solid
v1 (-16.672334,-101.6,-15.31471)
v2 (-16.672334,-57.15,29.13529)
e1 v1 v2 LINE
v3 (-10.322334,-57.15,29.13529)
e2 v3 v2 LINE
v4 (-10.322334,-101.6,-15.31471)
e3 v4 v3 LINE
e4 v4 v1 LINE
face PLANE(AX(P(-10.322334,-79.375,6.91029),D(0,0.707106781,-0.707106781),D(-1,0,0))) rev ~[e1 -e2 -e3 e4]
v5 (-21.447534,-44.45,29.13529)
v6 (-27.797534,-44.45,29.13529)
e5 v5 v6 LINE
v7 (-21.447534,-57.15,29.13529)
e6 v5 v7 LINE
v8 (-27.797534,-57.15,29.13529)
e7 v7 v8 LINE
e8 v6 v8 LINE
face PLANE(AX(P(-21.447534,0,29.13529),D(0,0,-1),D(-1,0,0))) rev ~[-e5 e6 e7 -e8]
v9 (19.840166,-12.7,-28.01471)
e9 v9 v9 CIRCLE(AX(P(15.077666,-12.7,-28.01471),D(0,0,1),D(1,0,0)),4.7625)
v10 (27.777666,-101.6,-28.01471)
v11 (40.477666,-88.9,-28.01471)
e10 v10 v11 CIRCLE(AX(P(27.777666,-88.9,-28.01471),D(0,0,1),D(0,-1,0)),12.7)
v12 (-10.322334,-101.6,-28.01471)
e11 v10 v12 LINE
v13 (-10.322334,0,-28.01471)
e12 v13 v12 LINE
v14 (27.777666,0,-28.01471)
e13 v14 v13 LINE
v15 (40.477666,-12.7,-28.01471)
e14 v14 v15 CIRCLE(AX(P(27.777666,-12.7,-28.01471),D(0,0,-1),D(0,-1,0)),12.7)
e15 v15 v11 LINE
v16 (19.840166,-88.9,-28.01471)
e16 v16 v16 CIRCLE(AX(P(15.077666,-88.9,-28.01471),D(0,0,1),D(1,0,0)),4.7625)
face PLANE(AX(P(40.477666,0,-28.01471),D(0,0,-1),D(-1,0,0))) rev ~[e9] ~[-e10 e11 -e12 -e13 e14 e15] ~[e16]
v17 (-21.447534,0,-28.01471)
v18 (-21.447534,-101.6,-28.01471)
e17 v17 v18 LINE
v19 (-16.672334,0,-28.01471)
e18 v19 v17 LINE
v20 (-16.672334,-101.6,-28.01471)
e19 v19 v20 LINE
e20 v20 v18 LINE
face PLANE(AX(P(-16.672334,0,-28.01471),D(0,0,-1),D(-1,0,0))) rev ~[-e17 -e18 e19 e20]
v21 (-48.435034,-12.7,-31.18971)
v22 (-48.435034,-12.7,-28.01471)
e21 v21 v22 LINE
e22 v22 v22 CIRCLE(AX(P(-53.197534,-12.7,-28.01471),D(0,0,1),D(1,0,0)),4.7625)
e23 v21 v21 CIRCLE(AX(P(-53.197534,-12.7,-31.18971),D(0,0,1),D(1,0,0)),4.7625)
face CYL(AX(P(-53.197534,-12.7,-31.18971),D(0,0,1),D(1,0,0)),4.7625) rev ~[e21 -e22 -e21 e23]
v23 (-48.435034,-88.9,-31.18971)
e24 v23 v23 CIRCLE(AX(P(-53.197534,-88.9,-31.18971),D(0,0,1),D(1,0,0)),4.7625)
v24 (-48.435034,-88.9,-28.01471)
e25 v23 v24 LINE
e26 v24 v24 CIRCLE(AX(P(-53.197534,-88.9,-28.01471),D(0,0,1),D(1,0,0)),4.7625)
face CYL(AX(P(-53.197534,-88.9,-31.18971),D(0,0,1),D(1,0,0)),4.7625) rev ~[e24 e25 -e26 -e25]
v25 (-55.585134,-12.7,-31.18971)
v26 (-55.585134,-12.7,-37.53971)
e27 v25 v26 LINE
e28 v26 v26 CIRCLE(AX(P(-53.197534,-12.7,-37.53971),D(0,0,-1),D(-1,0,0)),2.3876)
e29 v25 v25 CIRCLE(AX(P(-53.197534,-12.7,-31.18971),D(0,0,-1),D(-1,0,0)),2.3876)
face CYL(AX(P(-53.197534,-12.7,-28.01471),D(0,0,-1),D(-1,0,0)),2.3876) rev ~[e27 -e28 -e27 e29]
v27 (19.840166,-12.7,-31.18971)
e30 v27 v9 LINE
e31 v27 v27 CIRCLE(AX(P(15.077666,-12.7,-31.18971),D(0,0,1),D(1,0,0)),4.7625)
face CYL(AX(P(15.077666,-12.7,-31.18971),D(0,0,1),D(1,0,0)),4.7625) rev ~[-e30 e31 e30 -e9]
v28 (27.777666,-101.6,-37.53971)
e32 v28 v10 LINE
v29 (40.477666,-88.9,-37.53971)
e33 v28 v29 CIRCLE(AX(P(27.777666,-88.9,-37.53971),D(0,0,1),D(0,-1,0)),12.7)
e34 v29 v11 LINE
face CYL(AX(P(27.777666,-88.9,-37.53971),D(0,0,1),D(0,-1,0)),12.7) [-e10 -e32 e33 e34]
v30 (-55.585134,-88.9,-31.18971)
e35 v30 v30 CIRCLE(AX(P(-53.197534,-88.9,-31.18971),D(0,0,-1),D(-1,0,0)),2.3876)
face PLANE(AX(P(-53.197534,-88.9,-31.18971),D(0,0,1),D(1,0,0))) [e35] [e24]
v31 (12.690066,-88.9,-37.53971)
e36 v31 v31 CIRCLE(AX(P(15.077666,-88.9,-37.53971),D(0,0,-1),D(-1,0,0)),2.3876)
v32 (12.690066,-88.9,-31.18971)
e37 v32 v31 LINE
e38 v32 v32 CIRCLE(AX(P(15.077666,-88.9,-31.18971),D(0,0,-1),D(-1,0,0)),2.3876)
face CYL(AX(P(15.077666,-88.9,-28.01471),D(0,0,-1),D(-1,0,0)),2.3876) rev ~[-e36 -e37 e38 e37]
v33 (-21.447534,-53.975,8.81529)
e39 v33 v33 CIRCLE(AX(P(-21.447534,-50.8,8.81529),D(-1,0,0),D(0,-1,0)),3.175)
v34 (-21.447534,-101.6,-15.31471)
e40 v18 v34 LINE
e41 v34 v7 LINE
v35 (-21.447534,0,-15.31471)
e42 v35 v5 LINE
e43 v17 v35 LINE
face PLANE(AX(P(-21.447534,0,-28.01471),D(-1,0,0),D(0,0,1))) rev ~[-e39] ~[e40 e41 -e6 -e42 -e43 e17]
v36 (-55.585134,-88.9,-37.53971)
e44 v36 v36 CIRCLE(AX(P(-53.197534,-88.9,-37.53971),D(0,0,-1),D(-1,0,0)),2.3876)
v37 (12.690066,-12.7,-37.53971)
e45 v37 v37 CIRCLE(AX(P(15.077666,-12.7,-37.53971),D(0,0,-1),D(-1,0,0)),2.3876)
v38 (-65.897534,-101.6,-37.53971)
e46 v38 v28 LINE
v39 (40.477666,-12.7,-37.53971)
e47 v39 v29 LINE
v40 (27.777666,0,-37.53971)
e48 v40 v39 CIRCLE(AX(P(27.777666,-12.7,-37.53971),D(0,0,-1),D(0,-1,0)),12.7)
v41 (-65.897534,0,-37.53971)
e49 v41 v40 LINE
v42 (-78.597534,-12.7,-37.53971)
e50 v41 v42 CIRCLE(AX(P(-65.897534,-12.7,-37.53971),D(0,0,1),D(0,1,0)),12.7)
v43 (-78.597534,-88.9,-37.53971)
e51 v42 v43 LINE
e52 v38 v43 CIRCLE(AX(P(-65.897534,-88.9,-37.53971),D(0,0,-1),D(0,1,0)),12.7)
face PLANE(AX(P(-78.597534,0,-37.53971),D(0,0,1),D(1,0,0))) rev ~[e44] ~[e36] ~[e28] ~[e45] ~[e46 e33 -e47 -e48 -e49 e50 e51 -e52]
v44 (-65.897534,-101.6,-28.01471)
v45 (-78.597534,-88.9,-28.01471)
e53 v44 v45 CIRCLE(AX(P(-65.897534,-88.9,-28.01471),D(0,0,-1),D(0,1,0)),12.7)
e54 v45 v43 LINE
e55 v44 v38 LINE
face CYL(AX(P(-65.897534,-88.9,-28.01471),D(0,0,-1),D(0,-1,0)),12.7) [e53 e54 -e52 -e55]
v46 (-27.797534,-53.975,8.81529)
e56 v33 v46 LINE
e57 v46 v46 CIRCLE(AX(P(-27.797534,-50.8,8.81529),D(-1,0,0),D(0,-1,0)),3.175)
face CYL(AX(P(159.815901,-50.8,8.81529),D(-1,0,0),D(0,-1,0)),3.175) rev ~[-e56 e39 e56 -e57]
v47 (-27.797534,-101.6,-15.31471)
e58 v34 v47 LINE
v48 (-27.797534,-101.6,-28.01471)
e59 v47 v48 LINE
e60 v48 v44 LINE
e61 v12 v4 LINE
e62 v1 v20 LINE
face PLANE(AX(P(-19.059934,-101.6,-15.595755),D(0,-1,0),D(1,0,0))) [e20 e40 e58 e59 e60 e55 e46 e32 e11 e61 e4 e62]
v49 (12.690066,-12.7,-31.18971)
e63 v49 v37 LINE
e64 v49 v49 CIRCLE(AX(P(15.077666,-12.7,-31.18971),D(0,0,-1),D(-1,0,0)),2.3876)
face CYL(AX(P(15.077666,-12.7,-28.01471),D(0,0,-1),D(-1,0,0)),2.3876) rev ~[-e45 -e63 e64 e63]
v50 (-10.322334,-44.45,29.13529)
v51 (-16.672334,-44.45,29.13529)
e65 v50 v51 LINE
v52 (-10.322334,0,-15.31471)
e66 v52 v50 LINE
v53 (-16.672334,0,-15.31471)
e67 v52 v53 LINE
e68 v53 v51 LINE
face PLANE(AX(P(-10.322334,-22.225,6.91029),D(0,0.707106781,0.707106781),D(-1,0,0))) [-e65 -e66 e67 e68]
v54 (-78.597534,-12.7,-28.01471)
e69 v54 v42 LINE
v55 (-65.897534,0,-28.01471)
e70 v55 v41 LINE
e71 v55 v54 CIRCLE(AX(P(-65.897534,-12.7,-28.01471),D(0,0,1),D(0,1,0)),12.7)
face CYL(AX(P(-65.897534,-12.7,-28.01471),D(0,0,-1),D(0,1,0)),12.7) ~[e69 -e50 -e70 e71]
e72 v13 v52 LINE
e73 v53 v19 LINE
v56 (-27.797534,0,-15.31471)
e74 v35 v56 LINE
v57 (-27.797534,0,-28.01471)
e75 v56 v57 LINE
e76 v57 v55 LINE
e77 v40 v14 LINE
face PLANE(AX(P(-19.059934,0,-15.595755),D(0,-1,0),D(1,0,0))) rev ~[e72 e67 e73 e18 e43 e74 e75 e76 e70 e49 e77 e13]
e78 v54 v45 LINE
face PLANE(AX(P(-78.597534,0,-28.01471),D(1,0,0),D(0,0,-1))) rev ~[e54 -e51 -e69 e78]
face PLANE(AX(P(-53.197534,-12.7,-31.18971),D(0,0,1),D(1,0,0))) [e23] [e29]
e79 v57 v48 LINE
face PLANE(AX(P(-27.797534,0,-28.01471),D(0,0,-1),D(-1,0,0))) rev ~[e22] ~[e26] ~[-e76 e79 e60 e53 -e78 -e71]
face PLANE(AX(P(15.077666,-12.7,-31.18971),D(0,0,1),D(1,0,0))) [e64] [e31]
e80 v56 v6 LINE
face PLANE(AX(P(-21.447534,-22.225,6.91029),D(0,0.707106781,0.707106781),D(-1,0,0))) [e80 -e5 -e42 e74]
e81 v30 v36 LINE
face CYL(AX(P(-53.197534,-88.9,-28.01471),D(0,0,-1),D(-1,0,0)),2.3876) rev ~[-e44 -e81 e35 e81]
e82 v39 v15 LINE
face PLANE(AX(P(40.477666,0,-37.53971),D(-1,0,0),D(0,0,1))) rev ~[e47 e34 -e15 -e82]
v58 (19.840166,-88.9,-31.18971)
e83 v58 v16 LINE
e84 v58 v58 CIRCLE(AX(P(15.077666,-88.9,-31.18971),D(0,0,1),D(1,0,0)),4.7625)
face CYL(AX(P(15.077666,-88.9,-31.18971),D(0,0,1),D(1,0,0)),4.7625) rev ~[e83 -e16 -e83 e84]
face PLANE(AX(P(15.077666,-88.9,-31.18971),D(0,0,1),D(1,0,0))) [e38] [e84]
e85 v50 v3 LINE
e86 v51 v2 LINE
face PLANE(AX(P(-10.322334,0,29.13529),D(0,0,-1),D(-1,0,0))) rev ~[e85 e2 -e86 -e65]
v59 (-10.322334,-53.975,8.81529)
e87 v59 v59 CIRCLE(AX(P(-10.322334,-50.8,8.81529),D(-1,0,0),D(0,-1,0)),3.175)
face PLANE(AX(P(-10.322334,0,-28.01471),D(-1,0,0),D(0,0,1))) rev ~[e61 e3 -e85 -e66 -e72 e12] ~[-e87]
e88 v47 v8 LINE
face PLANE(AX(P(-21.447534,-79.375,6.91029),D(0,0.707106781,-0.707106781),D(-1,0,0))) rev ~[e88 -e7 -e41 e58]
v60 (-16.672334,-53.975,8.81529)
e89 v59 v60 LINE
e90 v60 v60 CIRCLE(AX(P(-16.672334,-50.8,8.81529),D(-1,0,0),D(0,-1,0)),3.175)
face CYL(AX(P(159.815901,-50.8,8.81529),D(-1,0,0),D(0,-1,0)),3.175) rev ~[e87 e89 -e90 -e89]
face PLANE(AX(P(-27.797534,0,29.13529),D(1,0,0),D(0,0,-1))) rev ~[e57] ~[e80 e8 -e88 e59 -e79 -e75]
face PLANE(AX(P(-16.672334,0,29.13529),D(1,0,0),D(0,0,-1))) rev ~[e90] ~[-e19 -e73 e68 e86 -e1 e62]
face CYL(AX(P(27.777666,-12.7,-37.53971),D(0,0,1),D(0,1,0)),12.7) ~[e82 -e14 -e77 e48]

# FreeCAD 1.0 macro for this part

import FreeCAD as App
import Part
import Sketcher
Q = App.Units.Quantity


def edges_at(feature, points):
    """Names of the edges that pass closest to the given points."""
    edges = feature.Shape.Edges
    near = lambda p: min(range(len(edges)), key=lambda i: edges[i].distToShape(Part.Vertex(*p))[0])
    return sorted({f"Edge{near(p) + 1}" for p in points})

doc = App.newDocument("Part")
body = doc.addObject("PartDesign::Body", "Body")

# Sketch on XZ plane
sketch1 = body.newObject("Sketcher::SketchObject", "Sketch")
sketch1.AttachmentSupport = (doc.getObject("XZ_Plane"), [""])
sketch1.MapMode = "FlatFace"
sketch1.addGeometry([
    Part.LineSegment(App.Vector(-27.797534, -28.01471, 0), App.Vector(-78.597534, -28.01471, 0)),  # 0
    Part.LineSegment(App.Vector(-78.597534, -28.01471, 0), App.Vector(-78.597534, -37.53971, 0)),  # 1
    Part.LineSegment(App.Vector(-78.597534, -37.53971, 0), App.Vector(40.477666, -37.53971, 0)),  # 2
    Part.LineSegment(App.Vector(40.477666, -37.53971, 0), App.Vector(40.477666, -28.01471, 0)),  # 3
    Part.LineSegment(App.Vector(40.477666, -28.01471, 0), App.Vector(-10.322334, -28.01471, 0)),  # 4
    Part.LineSegment(App.Vector(-10.322334, -28.01471, 0), App.Vector(-10.322334, 29.13529, 0)),  # 5
    Part.LineSegment(App.Vector(-10.322334, 29.13529, 0), App.Vector(-16.672334, 29.13529, 0)),  # 6
    Part.LineSegment(App.Vector(-16.672334, 29.13529, 0), App.Vector(-16.672334, -28.01471, 0)),  # 7
    Part.LineSegment(App.Vector(-16.672334, -28.01471, 0), App.Vector(-21.447534, -28.01471, 0)),  # 8
    Part.LineSegment(App.Vector(-21.447534, -28.01471, 0), App.Vector(-21.447534, 29.13529, 0)),  # 9
    Part.LineSegment(App.Vector(-21.447534, 29.13529, 0), App.Vector(-27.797534, 29.13529, 0)),  # 10
    Part.LineSegment(App.Vector(-27.797534, 29.13529, 0), App.Vector(-27.797534, -28.01471, 0)),  # 11
], False)
sketch1.addConstraint([
    Sketcher.Constraint("Coincident", 0, 2, 1, 1),
    Sketcher.Constraint("Coincident", 1, 2, 2, 1),
    Sketcher.Constraint("Coincident", 2, 2, 3, 1),
    Sketcher.Constraint("Coincident", 3, 2, 4, 1),
    Sketcher.Constraint("Coincident", 4, 2, 5, 1),
    Sketcher.Constraint("Coincident", 5, 2, 6, 1),
    Sketcher.Constraint("Coincident", 6, 2, 7, 1),
    Sketcher.Constraint("Coincident", 7, 2, 8, 1),
    Sketcher.Constraint("Coincident", 8, 2, 9, 1),
    Sketcher.Constraint("Coincident", 9, 2, 10, 1),
    Sketcher.Constraint("Coincident", 10, 2, 11, 1),
    Sketcher.Constraint("Coincident", 11, 2, 0, 1),
    Sketcher.Constraint("Horizontal", 0),
    Sketcher.Constraint("Vertical", 1),
    Sketcher.Constraint("Horizontal", 2),
    Sketcher.Constraint("Vertical", 3),
    Sketcher.Constraint("Horizontal", 4),
    Sketcher.Constraint("Vertical", 5),
    Sketcher.Constraint("Horizontal", 6),
    Sketcher.Constraint("Vertical", 7),
    Sketcher.Constraint("Horizontal", 8),
    Sketcher.Constraint("Vertical", 9),
    Sketcher.Constraint("Horizontal", 10),
    Sketcher.Constraint("Vertical", 11),
    Sketcher.Constraint("Horizontal", 0, 2, 3, 2),
    Sketcher.Constraint("Horizontal", 4, 2, 7, 2),
    Sketcher.Constraint("Horizontal", 6, 2, 9, 2),
    Sketcher.Constraint("Equal", 0, 4),
    Sketcher.Constraint("Equal", 6, 10),
    Sketcher.Constraint("DistanceX", 0, 2, 0, 1, Q("2 in")),
    Sketcher.Constraint("DistanceX", 6, 2, 6, 1, Q("0.25 in")),
    Sketcher.Constraint("DistanceY", 5, 1, 5, 2, Q("2.25 in")),
    Sketcher.Constraint("DistanceX", 2, 1, 2, 2, Q("4.688 in")),
    Sketcher.Constraint("DistanceY", 1, 2, 1, 1, Q("0.375 in")),
    Sketcher.Constraint("DistanceY", 0, 2, -1, 1, 28.01471),
    Sketcher.Constraint("DistanceX", 0, 2, -1, 1, 78.597534),
])
pad1 = body.newObject("PartDesign::Pad", "Pad")
pad1.Profile = sketch1
pad1.Length = Q("4 in")

# Sketch on XY plane
sketch2 = body.newObject("Sketcher::SketchObject", "Sketch001")
sketch2.AttachmentSupport = (doc.getObject("XY_Plane"), [""])
sketch2.MapMode = "FlatFace"
sketch2.AttachmentOffset = App.Placement(App.Vector(0, 0, -28.01471), App.Rotation())
sketch2.addGeometry([
    Part.Circle(App.Vector(-53.197534, -12.7, 0), App.Vector(0, 0, 1), 2.3876),
    Part.Circle(App.Vector(-53.197534, -88.9, 0), App.Vector(0, 0, 1), 2.3876),
], False)
sketch2.addConstraint([
    Sketcher.Constraint("Equal", 0, 1),
    Sketcher.Constraint("Vertical", 0, 3, 1, 3),
    Sketcher.Constraint("Diameter", 0, Q("0.188 in")),
    Sketcher.Constraint("DistanceY", 1, 3, 0, 3, Q("3 in")),
    Sketcher.Constraint("DistanceY", 0, 3, -1, 1, Q("0.5 in")),
    Sketcher.Constraint("DistanceX", 0, 3, -1, 1, 53.197534),
])
doc.recompute()
hole = body.newObject("PartDesign::Hole", "Hole")
hole.Profile = sketch2
hole.ThreadType = "None"
hole.Diameter = Q("0.188 in")
hole.DepthType = "ThroughAll"
hole.HoleCutType = "Counterbore"
hole.HoleCutDiameter = Q("0.375 in")
hole.HoleCutDepth = Q("0.125 in")

# Sketch on XY plane
sketch3 = body.newObject("Sketcher::SketchObject", "Sketch002")
sketch3.AttachmentSupport = (doc.getObject("XY_Plane"), [""])
sketch3.MapMode = "FlatFace"
sketch3.AttachmentOffset = App.Placement(App.Vector(0, 0, -28.01471), App.Rotation())
sketch3.addGeometry([
    Part.Circle(App.Vector(15.077666, -88.9, 0), App.Vector(0, 0, 1), 2.3876),
    Part.Circle(App.Vector(15.077666, -12.7, 0), App.Vector(0, 0, 1), 2.3876),
], False)
sketch3.addConstraint([
    Sketcher.Constraint("Equal", 0, 1),
    Sketcher.Constraint("Vertical", 0, 3, 1, 3),
    Sketcher.Constraint("Diameter", 0, Q("0.188 in")),
    Sketcher.Constraint("DistanceY", 0, 3, 1, 3, Q("3 in")),
    Sketcher.Constraint("DistanceY", 0, 3, -1, 1, Q("3.5 in")),
    Sketcher.Constraint("DistanceX", -1, 1, 0, 3, 15.077666),
])
doc.recompute()
hole2 = body.newObject("PartDesign::Hole", "Hole001")
hole2.Profile = sketch3
hole2.ThreadType = "None"
hole2.Diameter = Q("0.188 in")
hole2.DepthType = "ThroughAll"
hole2.HoleCutType = "Counterbore"
hole2.HoleCutDiameter = Q("0.375 in")
hole2.HoleCutDepth = Q("0.125 in")

# Sketch on YZ plane
sketch4 = body.newObject("Sketcher::SketchObject", "Sketch003")
sketch4.AttachmentSupport = (doc.getObject("YZ_Plane"), [""])
sketch4.MapMode = "FlatFace"
sketch4.AttachmentOffset = App.Placement(App.Vector(0, 0, -10.322334), App.Rotation())
sketch4.addGeometry(Part.Circle(App.Vector(-50.8, 8.81529, 0), App.Vector(0, 0, 1), 3.175), False)
sketch4.addConstraint([
    Sketcher.Constraint("Diameter", 0, Q("0.25 in")),
    Sketcher.Constraint("DistanceX", 0, 3, -1, 1, Q("2 in")),
    Sketcher.Constraint("DistanceY", -1, 1, 0, 3, 8.81529),
])
doc.recompute()
hole3 = body.newObject("PartDesign::Hole", "Hole002")
hole3.Profile = sketch4
hole3.ThreadType = "None"
hole3.Diameter = Q("0.25 in")
hole3.DepthType = "ThroughAll"
doc.recompute()

chamfer = body.newObject("PartDesign::Chamfer", "Chamfer")
chamfer.Base = (hole3, edges_at(hole3, [
    (-13.497, -101.6, 29.135),
    (-24.623, -101.6, 29.135),
    (-13.497, 0, 29.135),
    (-24.623, 0, 29.135),
]))
chamfer.Size = Q("1.75 in")
doc.recompute()

fillet = body.newObject("PartDesign::Fillet", "Fillet")
fillet.Base = (chamfer, edges_at(chamfer, [
    (40.478, -101.6, -32.777),
    (40.478, 0, -32.777),
    (-78.598, -101.6, -32.777),
    (-78.598, 0, -32.777),
]))
fillet.Radius = Q("0.5 in")

doc.recompute()
